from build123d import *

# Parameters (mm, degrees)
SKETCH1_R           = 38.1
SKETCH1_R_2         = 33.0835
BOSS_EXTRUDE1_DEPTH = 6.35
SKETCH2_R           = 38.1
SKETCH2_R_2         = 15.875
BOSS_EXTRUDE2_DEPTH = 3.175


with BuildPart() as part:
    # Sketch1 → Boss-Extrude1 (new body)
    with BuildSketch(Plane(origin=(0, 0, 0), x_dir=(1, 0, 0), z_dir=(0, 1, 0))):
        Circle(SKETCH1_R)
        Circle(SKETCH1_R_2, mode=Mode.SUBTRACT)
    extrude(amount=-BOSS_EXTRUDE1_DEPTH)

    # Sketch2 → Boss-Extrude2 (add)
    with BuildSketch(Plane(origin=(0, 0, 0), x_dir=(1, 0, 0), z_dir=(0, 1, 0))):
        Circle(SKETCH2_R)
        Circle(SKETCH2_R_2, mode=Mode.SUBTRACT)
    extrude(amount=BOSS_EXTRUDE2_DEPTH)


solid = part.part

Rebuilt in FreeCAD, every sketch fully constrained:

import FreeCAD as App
import Part
import Sketcher
from FreeCAD import Vector
Q = App.Units.Quantity

doc = App.newDocument("Part")
body = doc.addObject("PartDesign::Body", "Body")

# Sketch on XZ plane
sketch1 = body.newObject("Sketcher::SketchObject", "Sketch")
sketch1.AttachmentSupport = (doc.getObject("XZ_Plane"), [""])
sketch1.MapMode = "FlatFace"
sketch1.addGeometry([
    Part.Circle(Vector(0, 0, 0), Vector(0, 0, 1), 38),
    Part.Circle(Vector(0, 0, 0), Vector(0, 0, 1), 33),
], False)
sketch1.addConstraint([
    Sketcher.Constraint("Coincident", 0, 3, -1, 1),
    Sketcher.Constraint("Coincident", 1, 3, -1, 1),
    Sketcher.Constraint("Diameter", 0, Q("3 in")),
    Sketcher.Constraint("Diameter", 1, Q("2.605 in")),
])
pad1 = body.newObject("PartDesign::Pad", "Pad")
pad1.Profile = sketch1
pad1.Length = Q("0.25 in")

# Sketch on XZ plane
sketch2 = body.newObject("Sketcher::SketchObject", "Sketch001")
sketch2.AttachmentSupport = (doc.getObject("XZ_Plane"), [""])
sketch2.MapMode = "FlatFace"
sketch2.addGeometry([
    Part.Circle(Vector(0, 0, 0), Vector(0, 0, 1), 38),
    Part.Circle(Vector(0, 0, 0), Vector(0, 0, 1), 16),
], False)
sketch2.addConstraint([
    Sketcher.Constraint("Coincident", 0, 3, -1, 1),
    Sketcher.Constraint("Coincident", 1, 3, -1, 1),
    Sketcher.Constraint("Diameter", 0, Q("3 in")),
    Sketcher.Constraint("Diameter", 1, Q("1.25 in")),
])
pad2 = body.newObject("PartDesign::Pad", "Pad001")
pad2.Profile = sketch2
pad2.Length = Q("0.125 in")
pad2.Reversed = True

doc.recompute()
